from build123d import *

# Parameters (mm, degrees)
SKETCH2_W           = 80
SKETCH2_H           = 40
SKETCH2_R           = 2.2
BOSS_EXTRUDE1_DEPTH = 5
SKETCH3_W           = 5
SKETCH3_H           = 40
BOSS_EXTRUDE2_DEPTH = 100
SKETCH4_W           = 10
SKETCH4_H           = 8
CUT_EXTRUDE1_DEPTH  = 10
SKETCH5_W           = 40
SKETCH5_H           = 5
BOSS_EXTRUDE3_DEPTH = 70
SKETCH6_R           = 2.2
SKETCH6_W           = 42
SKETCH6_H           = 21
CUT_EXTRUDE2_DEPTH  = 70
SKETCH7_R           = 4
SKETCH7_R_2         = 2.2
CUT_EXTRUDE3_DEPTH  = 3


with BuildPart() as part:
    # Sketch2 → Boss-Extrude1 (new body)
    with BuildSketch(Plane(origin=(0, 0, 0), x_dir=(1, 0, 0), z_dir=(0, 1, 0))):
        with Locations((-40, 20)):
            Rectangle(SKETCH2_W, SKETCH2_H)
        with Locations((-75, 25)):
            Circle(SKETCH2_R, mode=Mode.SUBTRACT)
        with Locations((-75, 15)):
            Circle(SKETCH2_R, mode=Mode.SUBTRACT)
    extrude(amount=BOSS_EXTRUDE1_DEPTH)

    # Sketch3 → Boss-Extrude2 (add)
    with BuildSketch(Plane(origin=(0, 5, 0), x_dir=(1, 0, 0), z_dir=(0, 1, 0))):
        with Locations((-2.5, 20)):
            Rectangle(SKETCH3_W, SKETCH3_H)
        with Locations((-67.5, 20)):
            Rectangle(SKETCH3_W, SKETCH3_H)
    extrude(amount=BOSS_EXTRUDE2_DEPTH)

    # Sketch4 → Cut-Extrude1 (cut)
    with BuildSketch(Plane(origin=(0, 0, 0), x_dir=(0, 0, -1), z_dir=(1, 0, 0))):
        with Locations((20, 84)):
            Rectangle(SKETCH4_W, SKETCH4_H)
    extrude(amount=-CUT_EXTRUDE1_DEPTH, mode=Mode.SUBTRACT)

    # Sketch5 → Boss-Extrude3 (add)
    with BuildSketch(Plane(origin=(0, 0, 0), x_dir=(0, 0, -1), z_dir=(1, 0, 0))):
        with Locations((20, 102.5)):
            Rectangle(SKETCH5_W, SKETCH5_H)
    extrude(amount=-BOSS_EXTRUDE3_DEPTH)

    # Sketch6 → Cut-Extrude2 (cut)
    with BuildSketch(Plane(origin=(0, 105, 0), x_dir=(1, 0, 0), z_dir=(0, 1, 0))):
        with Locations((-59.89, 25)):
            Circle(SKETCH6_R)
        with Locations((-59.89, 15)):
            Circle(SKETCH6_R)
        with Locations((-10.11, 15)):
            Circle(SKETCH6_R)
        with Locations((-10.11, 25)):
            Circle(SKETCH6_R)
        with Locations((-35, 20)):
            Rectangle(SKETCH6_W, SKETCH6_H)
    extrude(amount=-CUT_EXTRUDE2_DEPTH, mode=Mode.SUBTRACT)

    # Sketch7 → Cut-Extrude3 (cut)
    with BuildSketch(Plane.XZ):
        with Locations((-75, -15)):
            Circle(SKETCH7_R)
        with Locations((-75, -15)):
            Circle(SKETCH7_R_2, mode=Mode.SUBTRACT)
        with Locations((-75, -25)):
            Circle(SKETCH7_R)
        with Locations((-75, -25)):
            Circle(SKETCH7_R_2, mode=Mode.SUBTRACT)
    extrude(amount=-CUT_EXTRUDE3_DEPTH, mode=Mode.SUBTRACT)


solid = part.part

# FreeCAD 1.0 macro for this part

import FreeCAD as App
import Part
import Sketcher

V = App.Vector

doc = App.newDocument("Part")
body = doc.addObject("PartDesign::Body", "Body")

# Sketch on XZ plane
sketch1 = body.newObject("Sketcher::SketchObject", "Sketch")
sketch1.AttachmentSupport = (doc.getObject("XZ_Plane"), [""])
sketch1.MapMode = "FlatFace"
sketch1.addGeometry([
    Part.LineSegment(V(-80, -40, 0), V(-80, 0, 0)),  # 0
    Part.LineSegment(V(-80, 0, 0), V(0, 0, 0)),  # 1
    Part.LineSegment(V(0, 0, 0), V(0, -40, 0)),  # 2
    Part.LineSegment(V(0, -40, 0), V(-80, -40, 0)),  # 3
    Part.Circle(V(-75, -15, 0), V(0, 0, 1), 2.2),  # 4
    Part.Circle(V(-75, -25, 0), V(0, 0, 1), 2.2),  # 5
], False)
sketch1.addConstraint([
    Sketcher.Constraint("Coincident", 0, 2, 1, 1),
    Sketcher.Constraint("Coincident", 1, 2, 2, 1),
    Sketcher.Constraint("Coincident", 2, 2, 3, 1),
    Sketcher.Constraint("Coincident", 3, 2, 0, 1),
    Sketcher.Constraint("Vertical", 0),
    Sketcher.Constraint("Horizontal", 1),
    Sketcher.Constraint("Vertical", 2),
    Sketcher.Constraint("Horizontal", 3),
    Sketcher.Constraint("Coincident", 1, 2, -1, 1),
    Sketcher.Constraint("Equal", 4, 5),
    Sketcher.Constraint("Vertical", 4, 3, 5, 3),
    Sketcher.Constraint("Diameter", 4, 4.4),
    Sketcher.Constraint("DistanceX", 1, 1, 1, 2, 80.0),
    Sketcher.Constraint("DistanceY", 0, 1, 0, 2, 40.0),
    Sketcher.Constraint("DistanceX", 4, 3, -1, 1, 75.0),
    Sketcher.Constraint("DistanceY", 4, 3, -1, 1, 15.0),
    Sketcher.Constraint("DistanceY", 5, 3, -1, 1, 25.0),
])
pad1 = body.newObject("PartDesign::Pad", "Pad")
pad1.Profile = sketch1
pad1.Length = 5
pad1.Reversed = True

# Sketch on XZ plane
sketch2 = body.newObject("Sketcher::SketchObject", "Sketch001")
sketch2.AttachmentSupport = (doc.getObject("XZ_Plane"), [""])
sketch2.MapMode = "FlatFace"
sketch2.AttachmentOffset = App.Placement(V(0, 0, -5), App.Rotation())
sketch2.addGeometry([
    Part.LineSegment(V(-5, -40, 0), V(-5, 0, 0)),  # 0
    Part.LineSegment(V(-5, 0, 0), V(0, 0, 0)),  # 1
    Part.LineSegment(V(0, 0, 0), V(0, -40, 0)),  # 2
    Part.LineSegment(V(0, -40, 0), V(-5, -40, 0)),  # 3
    Part.LineSegment(V(-70, -40, 0), V(-70, 0, 0)),  # 4
    Part.LineSegment(V(-70, 0, 0), V(-65, 0, 0)),  # 5
    Part.LineSegment(V(-65, 0, 0), V(-65, -40, 0)),  # 6
    Part.LineSegment(V(-65, -40, 0), V(-70, -40, 0)),  # 7
], False)
sketch2.addConstraint([
    Sketcher.Constraint("Coincident", 0, 2, 1, 1),
    Sketcher.Constraint("Coincident", 1, 2, 2, 1),
    Sketcher.Constraint("Coincident", 2, 2, 3, 1),
    Sketcher.Constraint("Coincident", 3, 2, 0, 1),
    Sketcher.Constraint("Coincident", 4, 2, 5, 1),
    Sketcher.Constraint("Coincident", 5, 2, 6, 1),
    Sketcher.Constraint("Coincident", 6, 2, 7, 1),
    Sketcher.Constraint("Coincident", 7, 2, 4, 1),
    Sketcher.Constraint("Vertical", 0),
    Sketcher.Constraint("Horizontal", 1),
    Sketcher.Constraint("Vertical", 2),
    Sketcher.Constraint("Horizontal", 3),
    Sketcher.Constraint("Vertical", 4),
    Sketcher.Constraint("Horizontal", 5),
    Sketcher.Constraint("Vertical", 6),
    Sketcher.Constraint("Horizontal", 7),
    Sketcher.Constraint("Coincident", 1, 2, -1, 1),
    Sketcher.Constraint("PointOnObject", 4, 2, -1),
    Sketcher.Constraint("Horizontal", 3, 2, 6, 2),
    Sketcher.Constraint("Equal", 3, 5),
    Sketcher.Constraint("DistanceX", 1, 1, 1, 2, 5.0),
    Sketcher.Constraint("DistanceY", 0, 1, 0, 2, 40.0),
    Sketcher.Constraint("DistanceX", 4, 2, -1, 1, 70.0),
])
pad2 = body.newObject("PartDesign::Pad", "Pad001")
pad2.Profile = sketch2
pad2.Length = 100
pad2.Reversed = True

# Sketch on YZ plane
sketch3 = body.newObject("Sketcher::SketchObject", "Sketch002")
sketch3.AttachmentSupport = (doc.getObject("YZ_Plane"), [""])
sketch3.MapMode = "FlatFace"
sketch3.addGeometry([
    Part.LineSegment(V(88, -15, 0), V(80, -15, 0)),
    Part.LineSegment(V(80, -15, 0), V(80, -25, 0)),
    Part.LineSegment(V(80, -25, 0), V(88, -25, 0)),
    Part.LineSegment(V(88, -25, 0), V(88, -15, 0)),
], False)
sketch3.addConstraint([
    Sketcher.Constraint("Coincident", 0, 2, 1, 1),
    Sketcher.Constraint("Coincident", 1, 2, 2, 1),
    Sketcher.Constraint("Coincident", 2, 2, 3, 1),
    Sketcher.Constraint("Coincident", 3, 2, 0, 1),
    Sketcher.Constraint("Horizontal", 0),
    Sketcher.Constraint("Vertical", 1),
    Sketcher.Constraint("Horizontal", 2),
    Sketcher.Constraint("Vertical", 3),
    Sketcher.Constraint("DistanceX", 0, 2, 0, 1, 8.0),
    Sketcher.Constraint("DistanceY", 1, 2, 1, 1, 10.0),
    Sketcher.Constraint("DistanceX", -1, 1, 0, 2, 80.0),
    Sketcher.Constraint("DistanceY", 0, 2, -1, 1, 15.0),
])
pocket1 = body.newObject("PartDesign::Pocket", "Pocket")
pocket1.Profile = sketch3
pocket1.Length = 10

# Sketch on YZ plane
sketch4 = body.newObject("Sketcher::SketchObject", "Sketch003")
sketch4.AttachmentSupport = (doc.getObject("YZ_Plane"), [""])
sketch4.MapMode = "FlatFace"
sketch4.addGeometry([
    Part.LineSegment(V(105, 0, 0), V(100, 0, 0)),
    Part.LineSegment(V(100, 0, 0), V(100, -40, 0)),
    Part.LineSegment(V(100, -40, 0), V(105, -40, 0)),
    Part.LineSegment(V(105, -40, 0), V(105, 0, 0)),
], False)
sketch4.addConstraint([
    Sketcher.Constraint("Coincident", 0, 2, 1, 1),
    Sketcher.Constraint("Coincident", 1, 2, 2, 1),
    Sketcher.Constraint("Coincident", 2, 2, 3, 1),
    Sketcher.Constraint("Coincident", 3, 2, 0, 1),
    Sketcher.Constraint("Horizontal", 0),
    Sketcher.Constraint("Vertical", 1),
    Sketcher.Constraint("Horizontal", 2),
    Sketcher.Constraint("Vertical", 3),
    Sketcher.Constraint("PointOnObject", 0, 2, -1),
    Sketcher.Constraint("DistanceX", 0, 2, 0, 1, 5.0),
    Sketcher.Constraint("DistanceY", 1, 2, 1, 1, 40.0),
    Sketcher.Constraint("DistanceX", -1, 1, 0, 2, 100.0),
])
pad3 = body.newObject("PartDesign::Pad", "Pad002")
pad3.Profile = sketch4
pad3.Length = 70
pad3.Reversed = True

# Sketch on XZ plane
sketch5 = body.newObject("Sketcher::SketchObject", "Sketch004")
sketch5.AttachmentSupport = (doc.getObject("XZ_Plane"), [""])
sketch5.MapMode = "FlatFace"
sketch5.AttachmentOffset = App.Placement(V(0, 0, -105), App.Rotation())
sketch5.addGeometry([
    Part.Circle(V(-59.9, -25, 0), V(0, 0, 1), 2.2),  # 0
    Part.Circle(V(-59.9, -15, 0), V(0, 0, 1), 2.2),  # 1
    Part.Circle(V(-10.1, -15, 0), V(0, 0, 1), 2.2),  # 2
    Part.Circle(V(-10.1, -25, 0), V(0, 0, 1), 2.2),  # 3
    Part.LineSegment(V(-56, -30.5, 0), V(-56, -9.5, 0)),  # 4
    Part.LineSegment(V(-56, -9.5, 0), V(-14, -9.5, 0)),  # 5
    Part.LineSegment(V(-14, -9.5, 0), V(-14, -30.5, 0)),  # 6
    Part.LineSegment(V(-14, -30.5, 0), V(-56, -30.5, 0)),  # 7
], False)
sketch5.addConstraint([
    Sketcher.Constraint("Coincident", 4, 2, 5, 1),
    Sketcher.Constraint("Coincident", 5, 2, 6, 1),
    Sketcher.Constraint("Coincident", 6, 2, 7, 1),
    Sketcher.Constraint("Coincident", 7, 2, 4, 1),
    Sketcher.Constraint("Vertical", 4),
    Sketcher.Constraint("Horizontal", 5),
    Sketcher.Constraint("Vertical", 6),
    Sketcher.Constraint("Horizontal", 7),
    Sketcher.Constraint("Equal", 0, 1),
    Sketcher.Constraint("Equal", 1, 2),
    Sketcher.Constraint("Equal", 2, 3),
    Sketcher.Constraint("Horizontal", 1, 3, 2, 3),
    Sketcher.Constraint("Horizontal", 0, 3, 3, 3),
    Sketcher.Constraint("Vertical", 0, 3, 1, 3),
    Sketcher.Constraint("Vertical", 2, 3, 3, 3),
    Sketcher.Constraint("Diameter", 0, 4.4),
    Sketcher.Constraint("DistanceX", 5, 1, 5, 2, 42.0),
    Sketcher.Constraint("DistanceY", 4, 1, 4, 2, 21.0),
    Sketcher.Constraint("DistanceY", 0, 3, -1, 1, 25.0),
    Sketcher.Constraint("DistanceY", 1, 3, -1, 1, 15.0),
    Sketcher.Constraint("DistanceX", 4, 2, -1, 1, 56.0),
    Sketcher.Constraint("DistanceY", 4, 2, -1, 1, 9.5),
    Sketcher.Constraint("DistanceX", 0, 3, -1, 1, 59.89),
    Sketcher.Constraint("DistanceX", 2, 3, -1, 1, 10.11),
])
pocket2 = body.newObject("PartDesign::Pocket", "Pocket001")
pocket2.Profile = sketch5
pocket2.Length = 70
pocket2.Reversed = True

# Sketch on XZ plane
sketch6 = body.newObject("Sketcher::SketchObject", "Sketch005")
sketch6.AttachmentSupport = (doc.getObject("XZ_Plane"), [""])
sketch6.MapMode = "FlatFace"
sketch6.addGeometry([
    Part.Circle(V(-75, -15, 0), V(0, 0, 1), 4),
    Part.Circle(V(-75, -15, 0), V(0, 0, 1), 2.2),
    Part.Circle(V(-75, -25, 0), V(0, 0, 1), 4),
    Part.Circle(V(-75, -25, 0), V(0, 0, 1), 2.2),
], False)
sketch6.addConstraint([
    Sketcher.Constraint("Coincident", 1, 3, 0, 3),
    Sketcher.Constraint("Coincident", 3, 3, 2, 3),
    Sketcher.Constraint("Equal", 0, 2),
    Sketcher.Constraint("Equal", 1, 3),
    Sketcher.Constraint("Vertical", 1, 3, 2, 3),
    Sketcher.Constraint("Diameter", 0, 8.0),
    Sketcher.Constraint("Diameter", 1, 4.4),
    Sketcher.Constraint("DistanceX", 0, 3, -1, 1, 75.0),
    Sketcher.Constraint("DistanceY", 0, 3, -1, 1, 15.0),
    Sketcher.Constraint("DistanceY", 2, 3, -1, 1, 25.0),
])
pocket3 = body.newObject("PartDesign::Pocket", "Pocket002")
pocket3.Profile = sketch6
pocket3.Length = 3

doc.recompute()
